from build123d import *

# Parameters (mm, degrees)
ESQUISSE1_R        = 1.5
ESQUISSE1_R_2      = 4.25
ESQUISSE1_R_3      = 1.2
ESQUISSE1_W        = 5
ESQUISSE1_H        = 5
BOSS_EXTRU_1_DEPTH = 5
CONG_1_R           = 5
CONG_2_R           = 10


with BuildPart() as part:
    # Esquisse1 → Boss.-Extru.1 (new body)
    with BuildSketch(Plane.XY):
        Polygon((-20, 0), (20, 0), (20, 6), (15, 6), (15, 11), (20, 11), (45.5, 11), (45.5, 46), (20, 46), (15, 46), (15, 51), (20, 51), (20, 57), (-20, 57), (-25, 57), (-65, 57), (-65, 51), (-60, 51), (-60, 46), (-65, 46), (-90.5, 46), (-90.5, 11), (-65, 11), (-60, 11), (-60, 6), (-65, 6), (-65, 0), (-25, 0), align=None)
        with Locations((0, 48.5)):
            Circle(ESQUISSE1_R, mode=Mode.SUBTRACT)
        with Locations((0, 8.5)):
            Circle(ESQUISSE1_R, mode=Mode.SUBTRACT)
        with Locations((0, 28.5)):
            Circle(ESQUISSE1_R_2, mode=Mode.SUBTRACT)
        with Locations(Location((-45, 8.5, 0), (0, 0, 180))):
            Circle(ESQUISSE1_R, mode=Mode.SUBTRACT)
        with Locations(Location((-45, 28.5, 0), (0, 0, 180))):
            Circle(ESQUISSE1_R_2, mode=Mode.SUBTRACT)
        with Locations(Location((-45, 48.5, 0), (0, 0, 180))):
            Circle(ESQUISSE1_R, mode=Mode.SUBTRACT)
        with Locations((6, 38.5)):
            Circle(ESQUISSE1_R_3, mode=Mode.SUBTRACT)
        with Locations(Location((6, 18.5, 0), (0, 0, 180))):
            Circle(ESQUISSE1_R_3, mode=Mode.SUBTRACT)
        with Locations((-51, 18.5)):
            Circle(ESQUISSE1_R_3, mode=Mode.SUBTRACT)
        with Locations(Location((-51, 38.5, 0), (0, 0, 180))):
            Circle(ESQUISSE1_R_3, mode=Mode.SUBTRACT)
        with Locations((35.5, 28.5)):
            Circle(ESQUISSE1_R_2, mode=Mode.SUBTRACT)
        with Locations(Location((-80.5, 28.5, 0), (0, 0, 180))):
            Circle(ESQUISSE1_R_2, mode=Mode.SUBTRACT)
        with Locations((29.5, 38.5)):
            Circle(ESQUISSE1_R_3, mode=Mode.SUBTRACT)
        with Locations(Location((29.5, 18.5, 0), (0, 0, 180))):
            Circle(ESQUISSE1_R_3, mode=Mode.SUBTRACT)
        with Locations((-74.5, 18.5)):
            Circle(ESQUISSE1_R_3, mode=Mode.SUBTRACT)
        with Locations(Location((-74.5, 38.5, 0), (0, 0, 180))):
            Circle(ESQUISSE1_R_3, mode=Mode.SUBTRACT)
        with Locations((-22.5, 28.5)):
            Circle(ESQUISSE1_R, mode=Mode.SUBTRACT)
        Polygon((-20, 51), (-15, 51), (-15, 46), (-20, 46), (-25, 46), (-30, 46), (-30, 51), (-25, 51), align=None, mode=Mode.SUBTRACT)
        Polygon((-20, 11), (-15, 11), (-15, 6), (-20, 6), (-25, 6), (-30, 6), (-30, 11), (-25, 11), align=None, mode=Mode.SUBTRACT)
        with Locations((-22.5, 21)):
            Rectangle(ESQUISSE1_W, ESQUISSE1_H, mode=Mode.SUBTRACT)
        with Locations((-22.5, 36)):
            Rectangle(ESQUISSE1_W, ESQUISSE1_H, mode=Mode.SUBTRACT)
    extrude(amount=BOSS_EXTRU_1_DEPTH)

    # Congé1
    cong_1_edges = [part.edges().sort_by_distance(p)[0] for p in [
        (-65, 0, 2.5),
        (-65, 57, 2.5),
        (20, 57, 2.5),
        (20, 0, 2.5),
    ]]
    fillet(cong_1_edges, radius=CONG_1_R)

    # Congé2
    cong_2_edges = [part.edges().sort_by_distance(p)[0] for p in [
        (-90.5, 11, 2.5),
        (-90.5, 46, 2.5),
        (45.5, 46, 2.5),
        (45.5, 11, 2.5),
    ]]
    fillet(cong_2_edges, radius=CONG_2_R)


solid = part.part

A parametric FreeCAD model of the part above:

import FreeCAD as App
import Part
import Sketcher


def edges_at(feature, points):
    """Names of the edges that pass closest to the given points."""
    edges = feature.Shape.Edges
    near = lambda p: min(range(len(edges)), key=lambda i: edges[i].distToShape(Part.Vertex(*p))[0])
    return sorted({f"Edge{near(p) + 1}" for p in points})


def add_polygon(sketch, points):
    """Adds a closed chain of lines whose ends are joined by coincident constraints."""
    first, n = sketch.GeometryCount, len(points)
    for a, b in zip(points, points[1:] + points[:1]):
        sketch.addGeometry(Part.LineSegment(App.Vector(*a, 0), App.Vector(*b, 0)), False)
    for i in range(n):
        sketch.addConstraint(Sketcher.Constraint("Coincident", first + i, 2, first + (i + 1) % n, 1))

doc = App.newDocument("Part")
body = doc.addObject("PartDesign::Body", "Body")

# Sketch on XY plane
sketch1 = body.newObject("Sketcher::SketchObject", "Sketch")
sketch1.AttachmentSupport = (doc.getObject("XY_Plane"), [""])
sketch1.MapMode = "FlatFace"
add_polygon(sketch1, [(20, 0), (20, 6), (15, 6), (15, 11), (45.5, 11), (45.5, 46), (15, 46), (15, 51), (20, 51), (20, 57), (-65, 57), (-65, 51), (-60, 51), (-60, 46), (-90.5, 46), (-90.5, 11), (-60, 11), (-60, 6), (-65, 6), (-65, 0)])  # lines 0-19
sketch1.addGeometry(Part.Circle(App.Vector(-45, 8.5, 0), App.Vector(0, 0, 1), 1.5), False)  # 20
add_polygon(sketch1, [(-30, 11), (-15, 11), (-15, 6), (-30, 6)])  # lines 21-24
sketch1.addGeometry(Part.Circle(App.Vector(-74.5, 18.5, 0), App.Vector(0, 0, 1), 1.2), False)  # 25
sketch1.addGeometry(Part.Circle(App.Vector(-51, 18.5, 0), App.Vector(0, 0, 1), 1.2), False)  # 26
add_polygon(sketch1, [(-20, 18.5), (-25, 18.5), (-25, 23.5), (-20, 23.5)])  # lines 27-30
sketch1.addGeometry(Part.Circle(App.Vector(0, 8.5, 0), App.Vector(0, 0, 1), 1.5), False)  # 31
sketch1.addGeometry(Part.Circle(App.Vector(6, 18.5, 0), App.Vector(0, 0, 1), 1.2), False)  # 32
sketch1.addGeometry(Part.Circle(App.Vector(29.5, 18.5, 0), App.Vector(0, 0, 1), 1.2), False)  # 33
sketch1.addGeometry(Part.Circle(App.Vector(-80.5, 28.5, 0), App.Vector(0, 0, 1), 4.2), False)  # 34
sketch1.addGeometry(Part.Circle(App.Vector(-74.5, 38.5, 0), App.Vector(0, 0, 1), 1.2), False)  # 35
sketch1.addGeometry(Part.Circle(App.Vector(-45, 28.5, 0), App.Vector(0, 0, 1), 4.2), False)  # 36
sketch1.addGeometry(Part.Circle(App.Vector(-22.5, 28.5, 0), App.Vector(0, 0, 1), 1.5), False)  # 37
sketch1.addGeometry(Part.Circle(App.Vector(-51, 38.5, 0), App.Vector(0, 0, 1), 1.2), False)  # 38
add_polygon(sketch1, [(-20, 33.5), (-25, 33.5), (-25, 38.5), (-20, 38.5)])  # lines 39-42
sketch1.addGeometry(Part.Circle(App.Vector(-45, 48.5, 0), App.Vector(0, 0, 1), 1.5), False)  # 43
add_polygon(sketch1, [(-30, 51), (-15, 51), (-15, 46), (-30, 46)])  # lines 44-47
sketch1.addGeometry(Part.Circle(App.Vector(0, 28.5, 0), App.Vector(0, 0, 1), 4.2), False)  # 48
sketch1.addGeometry(Part.Circle(App.Vector(6, 38.5, 0), App.Vector(0, 0, 1), 1.2), False)  # 49
sketch1.addGeometry(Part.Circle(App.Vector(35.5, 28.5, 0), App.Vector(0, 0, 1), 4.2), False)  # 50
sketch1.addGeometry(Part.Circle(App.Vector(29.5, 38.5, 0), App.Vector(0, 0, 1), 1.2), False)  # 51
sketch1.addGeometry(Part.Circle(App.Vector(0, 48.5, 0), App.Vector(0, 0, 1), 1.5), False)  # 52
sketch1.addConstraint(Sketcher.Constraint("Vertical", 0))
sketch1.addConstraint(Sketcher.Constraint("Horizontal", 1))
sketch1.addConstraint(Sketcher.Constraint("Vertical", 2))
sketch1.addConstraint(Sketcher.Constraint("Horizontal", 3))
sketch1.addConstraint(Sketcher.Constraint("Vertical", 4))
sketch1.addConstraint(Sketcher.Constraint("Horizontal", 5))
sketch1.addConstraint(Sketcher.Constraint("Vertical", 6))
sketch1.addConstraint(Sketcher.Constraint("Horizontal", 7))
sketch1.addConstraint(Sketcher.Constraint("Vertical", 8))
sketch1.addConstraint(Sketcher.Constraint("Horizontal", 9))
sketch1.addConstraint(Sketcher.Constraint("Vertical", 10))
sketch1.addConstraint(Sketcher.Constraint("Horizontal", 11))
sketch1.addConstraint(Sketcher.Constraint("Vertical", 12))
sketch1.addConstraint(Sketcher.Constraint("Horizontal", 13))
sketch1.addConstraint(Sketcher.Constraint("Vertical", 14))
sketch1.addConstraint(Sketcher.Constraint("Horizontal", 15))
sketch1.addConstraint(Sketcher.Constraint("Vertical", 16))
sketch1.addConstraint(Sketcher.Constraint("Horizontal", 17))
sketch1.addConstraint(Sketcher.Constraint("Vertical", 18))
sketch1.addConstraint(Sketcher.Constraint("Horizontal", 19))
sketch1.addConstraint(Sketcher.Constraint("Horizontal", 21))
sketch1.addConstraint(Sketcher.Constraint("Vertical", 22))
sketch1.addConstraint(Sketcher.Constraint("Horizontal", 23))
sketch1.addConstraint(Sketcher.Constraint("Vertical", 24))
sketch1.addConstraint(Sketcher.Constraint("Horizontal", 27))
sketch1.addConstraint(Sketcher.Constraint("Vertical", 28))
sketch1.addConstraint(Sketcher.Constraint("Horizontal", 29))
sketch1.addConstraint(Sketcher.Constraint("Vertical", 30))
sketch1.addConstraint(Sketcher.Constraint("Horizontal", 39))
sketch1.addConstraint(Sketcher.Constraint("Vertical", 40))
sketch1.addConstraint(Sketcher.Constraint("Horizontal", 41))
sketch1.addConstraint(Sketcher.Constraint("Vertical", 42))
sketch1.addConstraint(Sketcher.Constraint("Horizontal", 44))
sketch1.addConstraint(Sketcher.Constraint("Vertical", 45))
sketch1.addConstraint(Sketcher.Constraint("Horizontal", 46))
sketch1.addConstraint(Sketcher.Constraint("Vertical", 47))
sketch1.addConstraint(Sketcher.Constraint("Equal", 25, 26))
sketch1.addConstraint(Sketcher.Constraint("Equal", 20, 31))
sketch1.addConstraint(Sketcher.Constraint("Equal", 26, 32))
sketch1.addConstraint(Sketcher.Constraint("Equal", 32, 33))
sketch1.addConstraint(Sketcher.Constraint("Equal", 33, 35))
sketch1.addConstraint(Sketcher.Constraint("Equal", 34, 36))
sketch1.addConstraint(Sketcher.Constraint("Equal", 31, 37))
sketch1.addConstraint(Sketcher.Constraint("Equal", 35, 38))
sketch1.addConstraint(Sketcher.Constraint("Equal", 37, 43))
sketch1.addConstraint(Sketcher.Constraint("Equal", 36, 48))
sketch1.addConstraint(Sketcher.Constraint("Equal", 38, 49))
sketch1.addConstraint(Sketcher.Constraint("Equal", 48, 50))
sketch1.addConstraint(Sketcher.Constraint("Equal", 49, 51))
sketch1.addConstraint(Sketcher.Constraint("Equal", 43, 52))
sketch1.addConstraint(Sketcher.Constraint("Symmetric", 2, 2, 21, 2, -2))
sketch1.addConstraint(Sketcher.Constraint("Symmetric", 6, 2, 44, 2, -2))
sketch1.addConstraint(Sketcher.Constraint("PointOnObject", 31, 3, -2))
sketch1.addConstraint(Sketcher.Constraint("PointOnObject", 48, 3, -2))
sketch1.addConstraint(Sketcher.Constraint("PointOnObject", 52, 3, -2))
sketch1.addConstraint(Sketcher.Constraint("PointOnObject", 18, 2, -1))
sketch1.addConstraint(Sketcher.Constraint("Horizontal", 25, 3, 26, 3))
sketch1.addConstraint(Sketcher.Constraint("Horizontal", 20, 3, 31, 3))
sketch1.addConstraint(Sketcher.Constraint("Horizontal", 26, 3, 32, 3))
sketch1.addConstraint(Sketcher.Constraint("Horizontal", 32, 3, 33, 3))
sketch1.addConstraint(Sketcher.Constraint("Horizontal", 34, 3, 36, 3))
sketch1.addConstraint(Sketcher.Constraint("Horizontal", 36, 3, 37, 3))
sketch1.addConstraint(Sketcher.Constraint("Horizontal", 35, 3, 38, 3))
sketch1.addConstraint(Sketcher.Constraint("Horizontal", 37, 3, 48, 3))
sketch1.addConstraint(Sketcher.Constraint("Horizontal", 38, 3, 49, 3))
sketch1.addConstraint(Sketcher.Constraint("Horizontal", 48, 3, 50, 3))
sketch1.addConstraint(Sketcher.Constraint("Horizontal", 49, 3, 51, 3))
sketch1.addConstraint(Sketcher.Constraint("Horizontal", 43, 3, 52, 3))
sketch1.addConstraint(Sketcher.Constraint("Horizontal", 7, 2, 10, 2))
sketch1.addConstraint(Sketcher.Constraint("Horizontal", 5, 2, 12, 2))
sketch1.addConstraint(Sketcher.Constraint("Horizontal", 3, 2, 14, 2))
sketch1.addConstraint(Sketcher.Constraint("Horizontal", 1, 2, 16, 2))
sketch1.addConstraint(Sketcher.Constraint("Horizontal", 17, 2, 22, 2))
sketch1.addConstraint(Sketcher.Constraint("Horizontal", 33, 3, 27, 2))
sketch1.addConstraint(Sketcher.Constraint("Horizontal", 51, 3, 40, 2))
sketch1.addConstraint(Sketcher.Constraint("Horizontal", 13, 2, 45, 2))
sketch1.addConstraint(Sketcher.Constraint("Vertical", 25, 3, 35, 3))
sketch1.addConstraint(Sketcher.Constraint("Vertical", 20, 3, 36, 3))
sketch1.addConstraint(Sketcher.Constraint("Vertical", 26, 3, 38, 3))
sketch1.addConstraint(Sketcher.Constraint("Vertical", 36, 3, 43, 3))
sketch1.addConstraint(Sketcher.Constraint("Vertical", 32, 3, 49, 3))
sketch1.addConstraint(Sketcher.Constraint("Vertical", 33, 3, 51, 3))
sketch1.addConstraint(Sketcher.Constraint("Vertical", 2, 2, 5, 2))
sketch1.addConstraint(Sketcher.Constraint("Vertical", 0, 2, 7, 2))
sketch1.addConstraint(Sketcher.Constraint("Vertical", 12, 2, 15, 2))
sketch1.addConstraint(Sketcher.Constraint("Vertical", 10, 2, 17, 2))
sketch1.addConstraint(Sketcher.Constraint("Vertical", 28, 2, 39, 2))
sketch1.addConstraint(Sketcher.Constraint("Vertical", 30, 2, 41, 2))
sketch1.addConstraint(Sketcher.Constraint("Vertical", 24, 2, 46, 2))
sketch1.addConstraint(Sketcher.Constraint("Equal", 7, 11))
sketch1.addConstraint(Sketcher.Constraint("Equal", 5, 13))
sketch1.addConstraint(Sketcher.Constraint("Equal", 17, 27))
sketch1.addConstraint(Sketcher.Constraint("Equal", 41, 2))
sketch1.addConstraint(Sketcher.Constraint("Equal", 2, 6))
sketch1.addConstraint(Sketcher.Constraint("Equal", 0, 8))
sketch1.addConstraint(Sketcher.Constraint("Equal", 24, 28))
sketch1.addConstraint(Sketcher.Constraint("Equal", 30, 40))
sketch1.addConstraint(Sketcher.Constraint("Diameter", 20, 3.0))
sketch1.addConstraint(Sketcher.Constraint("Diameter", 25, 2.4))
sketch1.addConstraint(Sketcher.Constraint("Diameter", 34, 8.5))
sketch1.addConstraint(Sketcher.Constraint("DistanceX", 1, 2, 1, 1, 5.0))
sketch1.addConstraint(Sketcher.Constraint("DistanceX", 9, 2, 9, 1, 85.0))
sketch1.addConstraint(Sketcher.Constraint("DistanceX", 21, 1, 21, 2, 15.0))
sketch1.addConstraint(Sketcher.Constraint("DistanceY", 0, 1, 0, 2, 6.0))
sketch1.addConstraint(Sketcher.Constraint("DistanceY", 4, 1, 4, 2, 35.0))
sketch1.addConstraint(Sketcher.Constraint("DistanceX", 3, 1, 3, 2, 30.5))
sketch1.addConstraint(Sketcher.Constraint("DistanceX", 20, 3, -1, 1, 45.0))
sketch1.addConstraint(Sketcher.Constraint("DistanceX", 26, 3, -1, 1, 51.0))
sketch1.addConstraint(Sketcher.Constraint("DistanceX", -1, 1, 32, 3, 6.0))
sketch1.addConstraint(Sketcher.Constraint("DistanceX", -1, 1, 0, 2, 20.0))
sketch1.addConstraint(Sketcher.Constraint("DistanceX", 27, 2, -1, 1, 25.0))
sketch1.addConstraint(Sketcher.Constraint("DistanceY", 20, 3, 25, 3, 10.0))
sketch1.addConstraint(Sketcher.Constraint("DistanceX", 25, 3, 33, 3, 104.0))
sketch1.addConstraint(Sketcher.Constraint("DistanceX", 34, 3, 25, 3, 6.0))
sketch1.addConstraint(Sketcher.Constraint("DistanceY", 25, 3, 34, 3, 10.0))
sketch1.addConstraint(Sketcher.Constraint("DistanceY", 34, 3, 35, 3, 10.0))
sketch1.addConstraint(Sketcher.Constraint("DistanceY", 38, 3, 43, 3, 10.0))
sketch1.addConstraint(Sketcher.Constraint("DistanceX", 33, 3, 50, 3, 6.0))
sketch1.addConstraint(Sketcher.Constraint("DistanceX", 33, 3, 3, 2, 16.0))
sketch1.addConstraint(Sketcher.Constraint("DistanceY", -1, 1, 20, 3, 8.5))
sketch1.addConstraint(Sketcher.Constraint("DistanceX", 37, 3, -1, 1, 22.5))
pad1 = body.newObject("PartDesign::Pad", "Pad")
pad1.Profile = sketch1
pad1.Length = 5
doc.recompute()

fillet = body.newObject("PartDesign::Fillet", "Fillet")
fillet.Base = (pad1, edges_at(pad1, [
    (-65, 0, 2.5),
    (-65, 57, 2.5),
    (20, 57, 2.5),
    (20, 0, 2.5),
]))
fillet.Radius = 5
doc.recompute()

fillet2 = body.newObject("PartDesign::Fillet", "Fillet001")
fillet2.Base = (fillet, edges_at(fillet, [
    (-90.5, 11, 2.5),
    (-90.5, 46, 2.5),
    (45.5, 46, 2.5),
    (45.5, 11, 2.5),
]))
fillet2.Radius = 10

doc.recompute()
